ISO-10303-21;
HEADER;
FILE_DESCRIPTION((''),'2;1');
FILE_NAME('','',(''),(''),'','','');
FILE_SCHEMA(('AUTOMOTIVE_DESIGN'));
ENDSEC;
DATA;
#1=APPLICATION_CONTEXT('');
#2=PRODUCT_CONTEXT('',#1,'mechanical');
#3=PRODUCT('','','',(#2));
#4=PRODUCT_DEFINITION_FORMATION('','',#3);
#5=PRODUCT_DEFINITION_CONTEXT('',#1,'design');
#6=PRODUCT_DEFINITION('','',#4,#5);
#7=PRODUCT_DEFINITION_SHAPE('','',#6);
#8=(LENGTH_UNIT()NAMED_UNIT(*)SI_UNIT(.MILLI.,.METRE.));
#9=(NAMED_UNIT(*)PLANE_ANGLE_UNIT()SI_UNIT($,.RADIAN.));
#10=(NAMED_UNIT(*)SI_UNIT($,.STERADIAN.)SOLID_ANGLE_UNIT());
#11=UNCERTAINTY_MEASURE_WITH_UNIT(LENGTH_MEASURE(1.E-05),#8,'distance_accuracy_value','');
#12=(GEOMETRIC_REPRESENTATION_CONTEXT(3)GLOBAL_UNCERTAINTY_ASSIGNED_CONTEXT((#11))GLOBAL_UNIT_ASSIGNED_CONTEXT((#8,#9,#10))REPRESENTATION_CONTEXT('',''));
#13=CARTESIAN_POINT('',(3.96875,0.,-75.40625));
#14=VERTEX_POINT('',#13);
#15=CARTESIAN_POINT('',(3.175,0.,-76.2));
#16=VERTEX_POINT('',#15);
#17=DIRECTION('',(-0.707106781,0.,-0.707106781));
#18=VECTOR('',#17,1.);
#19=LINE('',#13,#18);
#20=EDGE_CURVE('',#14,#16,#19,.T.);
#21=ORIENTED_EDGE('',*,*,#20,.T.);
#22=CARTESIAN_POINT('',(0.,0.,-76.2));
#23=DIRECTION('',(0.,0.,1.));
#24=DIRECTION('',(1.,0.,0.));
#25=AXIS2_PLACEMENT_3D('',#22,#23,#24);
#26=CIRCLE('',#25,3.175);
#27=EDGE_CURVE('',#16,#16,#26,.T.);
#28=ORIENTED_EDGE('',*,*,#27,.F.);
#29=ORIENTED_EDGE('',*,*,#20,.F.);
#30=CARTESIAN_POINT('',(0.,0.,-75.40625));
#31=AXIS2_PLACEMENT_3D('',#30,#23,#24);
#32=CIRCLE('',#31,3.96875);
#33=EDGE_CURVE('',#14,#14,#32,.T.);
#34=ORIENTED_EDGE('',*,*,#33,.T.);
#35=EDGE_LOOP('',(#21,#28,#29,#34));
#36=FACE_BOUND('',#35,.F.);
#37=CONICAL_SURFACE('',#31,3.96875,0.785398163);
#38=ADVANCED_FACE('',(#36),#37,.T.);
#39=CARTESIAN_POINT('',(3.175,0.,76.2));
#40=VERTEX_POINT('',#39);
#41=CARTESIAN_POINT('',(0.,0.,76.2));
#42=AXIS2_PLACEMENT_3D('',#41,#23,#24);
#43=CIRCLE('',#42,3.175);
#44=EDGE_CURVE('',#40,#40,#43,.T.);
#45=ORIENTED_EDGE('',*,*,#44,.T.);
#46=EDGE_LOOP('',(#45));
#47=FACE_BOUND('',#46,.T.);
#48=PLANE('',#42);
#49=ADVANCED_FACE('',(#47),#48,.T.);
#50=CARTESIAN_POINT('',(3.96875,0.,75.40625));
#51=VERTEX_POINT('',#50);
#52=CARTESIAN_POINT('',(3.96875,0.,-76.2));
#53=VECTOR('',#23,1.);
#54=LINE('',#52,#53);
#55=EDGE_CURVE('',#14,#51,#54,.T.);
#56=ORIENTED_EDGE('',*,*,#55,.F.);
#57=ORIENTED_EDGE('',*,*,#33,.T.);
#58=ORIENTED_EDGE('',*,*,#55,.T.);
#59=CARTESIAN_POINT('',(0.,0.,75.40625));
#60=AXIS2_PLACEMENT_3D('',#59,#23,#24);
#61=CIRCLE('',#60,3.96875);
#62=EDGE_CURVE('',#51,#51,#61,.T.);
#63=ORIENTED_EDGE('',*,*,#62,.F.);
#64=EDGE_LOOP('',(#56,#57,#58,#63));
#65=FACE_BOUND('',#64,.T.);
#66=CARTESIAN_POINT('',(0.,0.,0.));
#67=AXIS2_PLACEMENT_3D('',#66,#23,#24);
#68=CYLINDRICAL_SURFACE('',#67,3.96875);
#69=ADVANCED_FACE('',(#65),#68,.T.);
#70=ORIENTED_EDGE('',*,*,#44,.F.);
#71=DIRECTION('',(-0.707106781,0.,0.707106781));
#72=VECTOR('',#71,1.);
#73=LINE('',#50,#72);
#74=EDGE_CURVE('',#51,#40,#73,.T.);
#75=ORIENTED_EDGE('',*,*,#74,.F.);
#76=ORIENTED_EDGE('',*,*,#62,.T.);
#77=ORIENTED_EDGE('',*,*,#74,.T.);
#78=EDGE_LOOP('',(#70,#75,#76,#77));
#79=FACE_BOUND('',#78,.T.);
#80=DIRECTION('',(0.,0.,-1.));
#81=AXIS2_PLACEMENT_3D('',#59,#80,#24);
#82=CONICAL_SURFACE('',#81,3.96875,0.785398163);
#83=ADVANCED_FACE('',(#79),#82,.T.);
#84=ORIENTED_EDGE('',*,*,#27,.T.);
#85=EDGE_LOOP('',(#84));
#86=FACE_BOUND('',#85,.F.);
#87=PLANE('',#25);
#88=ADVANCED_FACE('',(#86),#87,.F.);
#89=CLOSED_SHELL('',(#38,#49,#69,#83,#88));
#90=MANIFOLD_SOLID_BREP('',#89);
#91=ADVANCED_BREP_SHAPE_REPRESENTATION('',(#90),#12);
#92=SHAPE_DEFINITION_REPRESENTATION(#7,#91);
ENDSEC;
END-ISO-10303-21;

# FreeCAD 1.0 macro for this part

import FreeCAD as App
import Part
import Sketcher
from FreeCAD import Vector
Q = App.Units.Quantity


def edges_at(feature, points):
    """Names of the edges that pass closest to the given points."""
    edges = feature.Shape.Edges
    near = lambda p: min(range(len(edges)), key=lambda i: edges[i].distToShape(Part.Vertex(*p))[0])
    return sorted({f"Edge{near(p) + 1}" for p in points})

doc = App.newDocument("Part")
body = doc.addObject("PartDesign::Body", "Body")

# Sketch on XY plane
sketch1 = doc.addObject("Sketcher::SketchObject", "Sketch")
body.addObject(sketch1)
sketch1.AttachmentSupport = (doc.XY_Plane, [""])
sketch1.MapMode = "FlatFace"
sketch1.addGeometry(Part.Circle(Vector(0, 0, 0), Vector(0, 0, 1), 4), False)
sketch1.addConstraint([
    Sketcher.Constraint("Coincident", 0, 3, -1, 1),
    Sketcher.Constraint("Diameter", 0, Q("0.3125 in")),
])
pad1 = doc.addObject("PartDesign::Pad", "Pad")
body.addObject(pad1)
pad1.Profile = sketch1
pad1.Length = Q("6 in")
pad1.Midplane = True
doc.recompute()

chamfer = doc.addObject("PartDesign::Chamfer", "Chamfer")
body.addObject(chamfer)
chamfer.Base = (pad1, edges_at(pad1, [(-3.969, 0, -76.2), (-3.969, 0, 76.2)]))
chamfer.Size = Q("0.03125 in")

doc.recompute()
